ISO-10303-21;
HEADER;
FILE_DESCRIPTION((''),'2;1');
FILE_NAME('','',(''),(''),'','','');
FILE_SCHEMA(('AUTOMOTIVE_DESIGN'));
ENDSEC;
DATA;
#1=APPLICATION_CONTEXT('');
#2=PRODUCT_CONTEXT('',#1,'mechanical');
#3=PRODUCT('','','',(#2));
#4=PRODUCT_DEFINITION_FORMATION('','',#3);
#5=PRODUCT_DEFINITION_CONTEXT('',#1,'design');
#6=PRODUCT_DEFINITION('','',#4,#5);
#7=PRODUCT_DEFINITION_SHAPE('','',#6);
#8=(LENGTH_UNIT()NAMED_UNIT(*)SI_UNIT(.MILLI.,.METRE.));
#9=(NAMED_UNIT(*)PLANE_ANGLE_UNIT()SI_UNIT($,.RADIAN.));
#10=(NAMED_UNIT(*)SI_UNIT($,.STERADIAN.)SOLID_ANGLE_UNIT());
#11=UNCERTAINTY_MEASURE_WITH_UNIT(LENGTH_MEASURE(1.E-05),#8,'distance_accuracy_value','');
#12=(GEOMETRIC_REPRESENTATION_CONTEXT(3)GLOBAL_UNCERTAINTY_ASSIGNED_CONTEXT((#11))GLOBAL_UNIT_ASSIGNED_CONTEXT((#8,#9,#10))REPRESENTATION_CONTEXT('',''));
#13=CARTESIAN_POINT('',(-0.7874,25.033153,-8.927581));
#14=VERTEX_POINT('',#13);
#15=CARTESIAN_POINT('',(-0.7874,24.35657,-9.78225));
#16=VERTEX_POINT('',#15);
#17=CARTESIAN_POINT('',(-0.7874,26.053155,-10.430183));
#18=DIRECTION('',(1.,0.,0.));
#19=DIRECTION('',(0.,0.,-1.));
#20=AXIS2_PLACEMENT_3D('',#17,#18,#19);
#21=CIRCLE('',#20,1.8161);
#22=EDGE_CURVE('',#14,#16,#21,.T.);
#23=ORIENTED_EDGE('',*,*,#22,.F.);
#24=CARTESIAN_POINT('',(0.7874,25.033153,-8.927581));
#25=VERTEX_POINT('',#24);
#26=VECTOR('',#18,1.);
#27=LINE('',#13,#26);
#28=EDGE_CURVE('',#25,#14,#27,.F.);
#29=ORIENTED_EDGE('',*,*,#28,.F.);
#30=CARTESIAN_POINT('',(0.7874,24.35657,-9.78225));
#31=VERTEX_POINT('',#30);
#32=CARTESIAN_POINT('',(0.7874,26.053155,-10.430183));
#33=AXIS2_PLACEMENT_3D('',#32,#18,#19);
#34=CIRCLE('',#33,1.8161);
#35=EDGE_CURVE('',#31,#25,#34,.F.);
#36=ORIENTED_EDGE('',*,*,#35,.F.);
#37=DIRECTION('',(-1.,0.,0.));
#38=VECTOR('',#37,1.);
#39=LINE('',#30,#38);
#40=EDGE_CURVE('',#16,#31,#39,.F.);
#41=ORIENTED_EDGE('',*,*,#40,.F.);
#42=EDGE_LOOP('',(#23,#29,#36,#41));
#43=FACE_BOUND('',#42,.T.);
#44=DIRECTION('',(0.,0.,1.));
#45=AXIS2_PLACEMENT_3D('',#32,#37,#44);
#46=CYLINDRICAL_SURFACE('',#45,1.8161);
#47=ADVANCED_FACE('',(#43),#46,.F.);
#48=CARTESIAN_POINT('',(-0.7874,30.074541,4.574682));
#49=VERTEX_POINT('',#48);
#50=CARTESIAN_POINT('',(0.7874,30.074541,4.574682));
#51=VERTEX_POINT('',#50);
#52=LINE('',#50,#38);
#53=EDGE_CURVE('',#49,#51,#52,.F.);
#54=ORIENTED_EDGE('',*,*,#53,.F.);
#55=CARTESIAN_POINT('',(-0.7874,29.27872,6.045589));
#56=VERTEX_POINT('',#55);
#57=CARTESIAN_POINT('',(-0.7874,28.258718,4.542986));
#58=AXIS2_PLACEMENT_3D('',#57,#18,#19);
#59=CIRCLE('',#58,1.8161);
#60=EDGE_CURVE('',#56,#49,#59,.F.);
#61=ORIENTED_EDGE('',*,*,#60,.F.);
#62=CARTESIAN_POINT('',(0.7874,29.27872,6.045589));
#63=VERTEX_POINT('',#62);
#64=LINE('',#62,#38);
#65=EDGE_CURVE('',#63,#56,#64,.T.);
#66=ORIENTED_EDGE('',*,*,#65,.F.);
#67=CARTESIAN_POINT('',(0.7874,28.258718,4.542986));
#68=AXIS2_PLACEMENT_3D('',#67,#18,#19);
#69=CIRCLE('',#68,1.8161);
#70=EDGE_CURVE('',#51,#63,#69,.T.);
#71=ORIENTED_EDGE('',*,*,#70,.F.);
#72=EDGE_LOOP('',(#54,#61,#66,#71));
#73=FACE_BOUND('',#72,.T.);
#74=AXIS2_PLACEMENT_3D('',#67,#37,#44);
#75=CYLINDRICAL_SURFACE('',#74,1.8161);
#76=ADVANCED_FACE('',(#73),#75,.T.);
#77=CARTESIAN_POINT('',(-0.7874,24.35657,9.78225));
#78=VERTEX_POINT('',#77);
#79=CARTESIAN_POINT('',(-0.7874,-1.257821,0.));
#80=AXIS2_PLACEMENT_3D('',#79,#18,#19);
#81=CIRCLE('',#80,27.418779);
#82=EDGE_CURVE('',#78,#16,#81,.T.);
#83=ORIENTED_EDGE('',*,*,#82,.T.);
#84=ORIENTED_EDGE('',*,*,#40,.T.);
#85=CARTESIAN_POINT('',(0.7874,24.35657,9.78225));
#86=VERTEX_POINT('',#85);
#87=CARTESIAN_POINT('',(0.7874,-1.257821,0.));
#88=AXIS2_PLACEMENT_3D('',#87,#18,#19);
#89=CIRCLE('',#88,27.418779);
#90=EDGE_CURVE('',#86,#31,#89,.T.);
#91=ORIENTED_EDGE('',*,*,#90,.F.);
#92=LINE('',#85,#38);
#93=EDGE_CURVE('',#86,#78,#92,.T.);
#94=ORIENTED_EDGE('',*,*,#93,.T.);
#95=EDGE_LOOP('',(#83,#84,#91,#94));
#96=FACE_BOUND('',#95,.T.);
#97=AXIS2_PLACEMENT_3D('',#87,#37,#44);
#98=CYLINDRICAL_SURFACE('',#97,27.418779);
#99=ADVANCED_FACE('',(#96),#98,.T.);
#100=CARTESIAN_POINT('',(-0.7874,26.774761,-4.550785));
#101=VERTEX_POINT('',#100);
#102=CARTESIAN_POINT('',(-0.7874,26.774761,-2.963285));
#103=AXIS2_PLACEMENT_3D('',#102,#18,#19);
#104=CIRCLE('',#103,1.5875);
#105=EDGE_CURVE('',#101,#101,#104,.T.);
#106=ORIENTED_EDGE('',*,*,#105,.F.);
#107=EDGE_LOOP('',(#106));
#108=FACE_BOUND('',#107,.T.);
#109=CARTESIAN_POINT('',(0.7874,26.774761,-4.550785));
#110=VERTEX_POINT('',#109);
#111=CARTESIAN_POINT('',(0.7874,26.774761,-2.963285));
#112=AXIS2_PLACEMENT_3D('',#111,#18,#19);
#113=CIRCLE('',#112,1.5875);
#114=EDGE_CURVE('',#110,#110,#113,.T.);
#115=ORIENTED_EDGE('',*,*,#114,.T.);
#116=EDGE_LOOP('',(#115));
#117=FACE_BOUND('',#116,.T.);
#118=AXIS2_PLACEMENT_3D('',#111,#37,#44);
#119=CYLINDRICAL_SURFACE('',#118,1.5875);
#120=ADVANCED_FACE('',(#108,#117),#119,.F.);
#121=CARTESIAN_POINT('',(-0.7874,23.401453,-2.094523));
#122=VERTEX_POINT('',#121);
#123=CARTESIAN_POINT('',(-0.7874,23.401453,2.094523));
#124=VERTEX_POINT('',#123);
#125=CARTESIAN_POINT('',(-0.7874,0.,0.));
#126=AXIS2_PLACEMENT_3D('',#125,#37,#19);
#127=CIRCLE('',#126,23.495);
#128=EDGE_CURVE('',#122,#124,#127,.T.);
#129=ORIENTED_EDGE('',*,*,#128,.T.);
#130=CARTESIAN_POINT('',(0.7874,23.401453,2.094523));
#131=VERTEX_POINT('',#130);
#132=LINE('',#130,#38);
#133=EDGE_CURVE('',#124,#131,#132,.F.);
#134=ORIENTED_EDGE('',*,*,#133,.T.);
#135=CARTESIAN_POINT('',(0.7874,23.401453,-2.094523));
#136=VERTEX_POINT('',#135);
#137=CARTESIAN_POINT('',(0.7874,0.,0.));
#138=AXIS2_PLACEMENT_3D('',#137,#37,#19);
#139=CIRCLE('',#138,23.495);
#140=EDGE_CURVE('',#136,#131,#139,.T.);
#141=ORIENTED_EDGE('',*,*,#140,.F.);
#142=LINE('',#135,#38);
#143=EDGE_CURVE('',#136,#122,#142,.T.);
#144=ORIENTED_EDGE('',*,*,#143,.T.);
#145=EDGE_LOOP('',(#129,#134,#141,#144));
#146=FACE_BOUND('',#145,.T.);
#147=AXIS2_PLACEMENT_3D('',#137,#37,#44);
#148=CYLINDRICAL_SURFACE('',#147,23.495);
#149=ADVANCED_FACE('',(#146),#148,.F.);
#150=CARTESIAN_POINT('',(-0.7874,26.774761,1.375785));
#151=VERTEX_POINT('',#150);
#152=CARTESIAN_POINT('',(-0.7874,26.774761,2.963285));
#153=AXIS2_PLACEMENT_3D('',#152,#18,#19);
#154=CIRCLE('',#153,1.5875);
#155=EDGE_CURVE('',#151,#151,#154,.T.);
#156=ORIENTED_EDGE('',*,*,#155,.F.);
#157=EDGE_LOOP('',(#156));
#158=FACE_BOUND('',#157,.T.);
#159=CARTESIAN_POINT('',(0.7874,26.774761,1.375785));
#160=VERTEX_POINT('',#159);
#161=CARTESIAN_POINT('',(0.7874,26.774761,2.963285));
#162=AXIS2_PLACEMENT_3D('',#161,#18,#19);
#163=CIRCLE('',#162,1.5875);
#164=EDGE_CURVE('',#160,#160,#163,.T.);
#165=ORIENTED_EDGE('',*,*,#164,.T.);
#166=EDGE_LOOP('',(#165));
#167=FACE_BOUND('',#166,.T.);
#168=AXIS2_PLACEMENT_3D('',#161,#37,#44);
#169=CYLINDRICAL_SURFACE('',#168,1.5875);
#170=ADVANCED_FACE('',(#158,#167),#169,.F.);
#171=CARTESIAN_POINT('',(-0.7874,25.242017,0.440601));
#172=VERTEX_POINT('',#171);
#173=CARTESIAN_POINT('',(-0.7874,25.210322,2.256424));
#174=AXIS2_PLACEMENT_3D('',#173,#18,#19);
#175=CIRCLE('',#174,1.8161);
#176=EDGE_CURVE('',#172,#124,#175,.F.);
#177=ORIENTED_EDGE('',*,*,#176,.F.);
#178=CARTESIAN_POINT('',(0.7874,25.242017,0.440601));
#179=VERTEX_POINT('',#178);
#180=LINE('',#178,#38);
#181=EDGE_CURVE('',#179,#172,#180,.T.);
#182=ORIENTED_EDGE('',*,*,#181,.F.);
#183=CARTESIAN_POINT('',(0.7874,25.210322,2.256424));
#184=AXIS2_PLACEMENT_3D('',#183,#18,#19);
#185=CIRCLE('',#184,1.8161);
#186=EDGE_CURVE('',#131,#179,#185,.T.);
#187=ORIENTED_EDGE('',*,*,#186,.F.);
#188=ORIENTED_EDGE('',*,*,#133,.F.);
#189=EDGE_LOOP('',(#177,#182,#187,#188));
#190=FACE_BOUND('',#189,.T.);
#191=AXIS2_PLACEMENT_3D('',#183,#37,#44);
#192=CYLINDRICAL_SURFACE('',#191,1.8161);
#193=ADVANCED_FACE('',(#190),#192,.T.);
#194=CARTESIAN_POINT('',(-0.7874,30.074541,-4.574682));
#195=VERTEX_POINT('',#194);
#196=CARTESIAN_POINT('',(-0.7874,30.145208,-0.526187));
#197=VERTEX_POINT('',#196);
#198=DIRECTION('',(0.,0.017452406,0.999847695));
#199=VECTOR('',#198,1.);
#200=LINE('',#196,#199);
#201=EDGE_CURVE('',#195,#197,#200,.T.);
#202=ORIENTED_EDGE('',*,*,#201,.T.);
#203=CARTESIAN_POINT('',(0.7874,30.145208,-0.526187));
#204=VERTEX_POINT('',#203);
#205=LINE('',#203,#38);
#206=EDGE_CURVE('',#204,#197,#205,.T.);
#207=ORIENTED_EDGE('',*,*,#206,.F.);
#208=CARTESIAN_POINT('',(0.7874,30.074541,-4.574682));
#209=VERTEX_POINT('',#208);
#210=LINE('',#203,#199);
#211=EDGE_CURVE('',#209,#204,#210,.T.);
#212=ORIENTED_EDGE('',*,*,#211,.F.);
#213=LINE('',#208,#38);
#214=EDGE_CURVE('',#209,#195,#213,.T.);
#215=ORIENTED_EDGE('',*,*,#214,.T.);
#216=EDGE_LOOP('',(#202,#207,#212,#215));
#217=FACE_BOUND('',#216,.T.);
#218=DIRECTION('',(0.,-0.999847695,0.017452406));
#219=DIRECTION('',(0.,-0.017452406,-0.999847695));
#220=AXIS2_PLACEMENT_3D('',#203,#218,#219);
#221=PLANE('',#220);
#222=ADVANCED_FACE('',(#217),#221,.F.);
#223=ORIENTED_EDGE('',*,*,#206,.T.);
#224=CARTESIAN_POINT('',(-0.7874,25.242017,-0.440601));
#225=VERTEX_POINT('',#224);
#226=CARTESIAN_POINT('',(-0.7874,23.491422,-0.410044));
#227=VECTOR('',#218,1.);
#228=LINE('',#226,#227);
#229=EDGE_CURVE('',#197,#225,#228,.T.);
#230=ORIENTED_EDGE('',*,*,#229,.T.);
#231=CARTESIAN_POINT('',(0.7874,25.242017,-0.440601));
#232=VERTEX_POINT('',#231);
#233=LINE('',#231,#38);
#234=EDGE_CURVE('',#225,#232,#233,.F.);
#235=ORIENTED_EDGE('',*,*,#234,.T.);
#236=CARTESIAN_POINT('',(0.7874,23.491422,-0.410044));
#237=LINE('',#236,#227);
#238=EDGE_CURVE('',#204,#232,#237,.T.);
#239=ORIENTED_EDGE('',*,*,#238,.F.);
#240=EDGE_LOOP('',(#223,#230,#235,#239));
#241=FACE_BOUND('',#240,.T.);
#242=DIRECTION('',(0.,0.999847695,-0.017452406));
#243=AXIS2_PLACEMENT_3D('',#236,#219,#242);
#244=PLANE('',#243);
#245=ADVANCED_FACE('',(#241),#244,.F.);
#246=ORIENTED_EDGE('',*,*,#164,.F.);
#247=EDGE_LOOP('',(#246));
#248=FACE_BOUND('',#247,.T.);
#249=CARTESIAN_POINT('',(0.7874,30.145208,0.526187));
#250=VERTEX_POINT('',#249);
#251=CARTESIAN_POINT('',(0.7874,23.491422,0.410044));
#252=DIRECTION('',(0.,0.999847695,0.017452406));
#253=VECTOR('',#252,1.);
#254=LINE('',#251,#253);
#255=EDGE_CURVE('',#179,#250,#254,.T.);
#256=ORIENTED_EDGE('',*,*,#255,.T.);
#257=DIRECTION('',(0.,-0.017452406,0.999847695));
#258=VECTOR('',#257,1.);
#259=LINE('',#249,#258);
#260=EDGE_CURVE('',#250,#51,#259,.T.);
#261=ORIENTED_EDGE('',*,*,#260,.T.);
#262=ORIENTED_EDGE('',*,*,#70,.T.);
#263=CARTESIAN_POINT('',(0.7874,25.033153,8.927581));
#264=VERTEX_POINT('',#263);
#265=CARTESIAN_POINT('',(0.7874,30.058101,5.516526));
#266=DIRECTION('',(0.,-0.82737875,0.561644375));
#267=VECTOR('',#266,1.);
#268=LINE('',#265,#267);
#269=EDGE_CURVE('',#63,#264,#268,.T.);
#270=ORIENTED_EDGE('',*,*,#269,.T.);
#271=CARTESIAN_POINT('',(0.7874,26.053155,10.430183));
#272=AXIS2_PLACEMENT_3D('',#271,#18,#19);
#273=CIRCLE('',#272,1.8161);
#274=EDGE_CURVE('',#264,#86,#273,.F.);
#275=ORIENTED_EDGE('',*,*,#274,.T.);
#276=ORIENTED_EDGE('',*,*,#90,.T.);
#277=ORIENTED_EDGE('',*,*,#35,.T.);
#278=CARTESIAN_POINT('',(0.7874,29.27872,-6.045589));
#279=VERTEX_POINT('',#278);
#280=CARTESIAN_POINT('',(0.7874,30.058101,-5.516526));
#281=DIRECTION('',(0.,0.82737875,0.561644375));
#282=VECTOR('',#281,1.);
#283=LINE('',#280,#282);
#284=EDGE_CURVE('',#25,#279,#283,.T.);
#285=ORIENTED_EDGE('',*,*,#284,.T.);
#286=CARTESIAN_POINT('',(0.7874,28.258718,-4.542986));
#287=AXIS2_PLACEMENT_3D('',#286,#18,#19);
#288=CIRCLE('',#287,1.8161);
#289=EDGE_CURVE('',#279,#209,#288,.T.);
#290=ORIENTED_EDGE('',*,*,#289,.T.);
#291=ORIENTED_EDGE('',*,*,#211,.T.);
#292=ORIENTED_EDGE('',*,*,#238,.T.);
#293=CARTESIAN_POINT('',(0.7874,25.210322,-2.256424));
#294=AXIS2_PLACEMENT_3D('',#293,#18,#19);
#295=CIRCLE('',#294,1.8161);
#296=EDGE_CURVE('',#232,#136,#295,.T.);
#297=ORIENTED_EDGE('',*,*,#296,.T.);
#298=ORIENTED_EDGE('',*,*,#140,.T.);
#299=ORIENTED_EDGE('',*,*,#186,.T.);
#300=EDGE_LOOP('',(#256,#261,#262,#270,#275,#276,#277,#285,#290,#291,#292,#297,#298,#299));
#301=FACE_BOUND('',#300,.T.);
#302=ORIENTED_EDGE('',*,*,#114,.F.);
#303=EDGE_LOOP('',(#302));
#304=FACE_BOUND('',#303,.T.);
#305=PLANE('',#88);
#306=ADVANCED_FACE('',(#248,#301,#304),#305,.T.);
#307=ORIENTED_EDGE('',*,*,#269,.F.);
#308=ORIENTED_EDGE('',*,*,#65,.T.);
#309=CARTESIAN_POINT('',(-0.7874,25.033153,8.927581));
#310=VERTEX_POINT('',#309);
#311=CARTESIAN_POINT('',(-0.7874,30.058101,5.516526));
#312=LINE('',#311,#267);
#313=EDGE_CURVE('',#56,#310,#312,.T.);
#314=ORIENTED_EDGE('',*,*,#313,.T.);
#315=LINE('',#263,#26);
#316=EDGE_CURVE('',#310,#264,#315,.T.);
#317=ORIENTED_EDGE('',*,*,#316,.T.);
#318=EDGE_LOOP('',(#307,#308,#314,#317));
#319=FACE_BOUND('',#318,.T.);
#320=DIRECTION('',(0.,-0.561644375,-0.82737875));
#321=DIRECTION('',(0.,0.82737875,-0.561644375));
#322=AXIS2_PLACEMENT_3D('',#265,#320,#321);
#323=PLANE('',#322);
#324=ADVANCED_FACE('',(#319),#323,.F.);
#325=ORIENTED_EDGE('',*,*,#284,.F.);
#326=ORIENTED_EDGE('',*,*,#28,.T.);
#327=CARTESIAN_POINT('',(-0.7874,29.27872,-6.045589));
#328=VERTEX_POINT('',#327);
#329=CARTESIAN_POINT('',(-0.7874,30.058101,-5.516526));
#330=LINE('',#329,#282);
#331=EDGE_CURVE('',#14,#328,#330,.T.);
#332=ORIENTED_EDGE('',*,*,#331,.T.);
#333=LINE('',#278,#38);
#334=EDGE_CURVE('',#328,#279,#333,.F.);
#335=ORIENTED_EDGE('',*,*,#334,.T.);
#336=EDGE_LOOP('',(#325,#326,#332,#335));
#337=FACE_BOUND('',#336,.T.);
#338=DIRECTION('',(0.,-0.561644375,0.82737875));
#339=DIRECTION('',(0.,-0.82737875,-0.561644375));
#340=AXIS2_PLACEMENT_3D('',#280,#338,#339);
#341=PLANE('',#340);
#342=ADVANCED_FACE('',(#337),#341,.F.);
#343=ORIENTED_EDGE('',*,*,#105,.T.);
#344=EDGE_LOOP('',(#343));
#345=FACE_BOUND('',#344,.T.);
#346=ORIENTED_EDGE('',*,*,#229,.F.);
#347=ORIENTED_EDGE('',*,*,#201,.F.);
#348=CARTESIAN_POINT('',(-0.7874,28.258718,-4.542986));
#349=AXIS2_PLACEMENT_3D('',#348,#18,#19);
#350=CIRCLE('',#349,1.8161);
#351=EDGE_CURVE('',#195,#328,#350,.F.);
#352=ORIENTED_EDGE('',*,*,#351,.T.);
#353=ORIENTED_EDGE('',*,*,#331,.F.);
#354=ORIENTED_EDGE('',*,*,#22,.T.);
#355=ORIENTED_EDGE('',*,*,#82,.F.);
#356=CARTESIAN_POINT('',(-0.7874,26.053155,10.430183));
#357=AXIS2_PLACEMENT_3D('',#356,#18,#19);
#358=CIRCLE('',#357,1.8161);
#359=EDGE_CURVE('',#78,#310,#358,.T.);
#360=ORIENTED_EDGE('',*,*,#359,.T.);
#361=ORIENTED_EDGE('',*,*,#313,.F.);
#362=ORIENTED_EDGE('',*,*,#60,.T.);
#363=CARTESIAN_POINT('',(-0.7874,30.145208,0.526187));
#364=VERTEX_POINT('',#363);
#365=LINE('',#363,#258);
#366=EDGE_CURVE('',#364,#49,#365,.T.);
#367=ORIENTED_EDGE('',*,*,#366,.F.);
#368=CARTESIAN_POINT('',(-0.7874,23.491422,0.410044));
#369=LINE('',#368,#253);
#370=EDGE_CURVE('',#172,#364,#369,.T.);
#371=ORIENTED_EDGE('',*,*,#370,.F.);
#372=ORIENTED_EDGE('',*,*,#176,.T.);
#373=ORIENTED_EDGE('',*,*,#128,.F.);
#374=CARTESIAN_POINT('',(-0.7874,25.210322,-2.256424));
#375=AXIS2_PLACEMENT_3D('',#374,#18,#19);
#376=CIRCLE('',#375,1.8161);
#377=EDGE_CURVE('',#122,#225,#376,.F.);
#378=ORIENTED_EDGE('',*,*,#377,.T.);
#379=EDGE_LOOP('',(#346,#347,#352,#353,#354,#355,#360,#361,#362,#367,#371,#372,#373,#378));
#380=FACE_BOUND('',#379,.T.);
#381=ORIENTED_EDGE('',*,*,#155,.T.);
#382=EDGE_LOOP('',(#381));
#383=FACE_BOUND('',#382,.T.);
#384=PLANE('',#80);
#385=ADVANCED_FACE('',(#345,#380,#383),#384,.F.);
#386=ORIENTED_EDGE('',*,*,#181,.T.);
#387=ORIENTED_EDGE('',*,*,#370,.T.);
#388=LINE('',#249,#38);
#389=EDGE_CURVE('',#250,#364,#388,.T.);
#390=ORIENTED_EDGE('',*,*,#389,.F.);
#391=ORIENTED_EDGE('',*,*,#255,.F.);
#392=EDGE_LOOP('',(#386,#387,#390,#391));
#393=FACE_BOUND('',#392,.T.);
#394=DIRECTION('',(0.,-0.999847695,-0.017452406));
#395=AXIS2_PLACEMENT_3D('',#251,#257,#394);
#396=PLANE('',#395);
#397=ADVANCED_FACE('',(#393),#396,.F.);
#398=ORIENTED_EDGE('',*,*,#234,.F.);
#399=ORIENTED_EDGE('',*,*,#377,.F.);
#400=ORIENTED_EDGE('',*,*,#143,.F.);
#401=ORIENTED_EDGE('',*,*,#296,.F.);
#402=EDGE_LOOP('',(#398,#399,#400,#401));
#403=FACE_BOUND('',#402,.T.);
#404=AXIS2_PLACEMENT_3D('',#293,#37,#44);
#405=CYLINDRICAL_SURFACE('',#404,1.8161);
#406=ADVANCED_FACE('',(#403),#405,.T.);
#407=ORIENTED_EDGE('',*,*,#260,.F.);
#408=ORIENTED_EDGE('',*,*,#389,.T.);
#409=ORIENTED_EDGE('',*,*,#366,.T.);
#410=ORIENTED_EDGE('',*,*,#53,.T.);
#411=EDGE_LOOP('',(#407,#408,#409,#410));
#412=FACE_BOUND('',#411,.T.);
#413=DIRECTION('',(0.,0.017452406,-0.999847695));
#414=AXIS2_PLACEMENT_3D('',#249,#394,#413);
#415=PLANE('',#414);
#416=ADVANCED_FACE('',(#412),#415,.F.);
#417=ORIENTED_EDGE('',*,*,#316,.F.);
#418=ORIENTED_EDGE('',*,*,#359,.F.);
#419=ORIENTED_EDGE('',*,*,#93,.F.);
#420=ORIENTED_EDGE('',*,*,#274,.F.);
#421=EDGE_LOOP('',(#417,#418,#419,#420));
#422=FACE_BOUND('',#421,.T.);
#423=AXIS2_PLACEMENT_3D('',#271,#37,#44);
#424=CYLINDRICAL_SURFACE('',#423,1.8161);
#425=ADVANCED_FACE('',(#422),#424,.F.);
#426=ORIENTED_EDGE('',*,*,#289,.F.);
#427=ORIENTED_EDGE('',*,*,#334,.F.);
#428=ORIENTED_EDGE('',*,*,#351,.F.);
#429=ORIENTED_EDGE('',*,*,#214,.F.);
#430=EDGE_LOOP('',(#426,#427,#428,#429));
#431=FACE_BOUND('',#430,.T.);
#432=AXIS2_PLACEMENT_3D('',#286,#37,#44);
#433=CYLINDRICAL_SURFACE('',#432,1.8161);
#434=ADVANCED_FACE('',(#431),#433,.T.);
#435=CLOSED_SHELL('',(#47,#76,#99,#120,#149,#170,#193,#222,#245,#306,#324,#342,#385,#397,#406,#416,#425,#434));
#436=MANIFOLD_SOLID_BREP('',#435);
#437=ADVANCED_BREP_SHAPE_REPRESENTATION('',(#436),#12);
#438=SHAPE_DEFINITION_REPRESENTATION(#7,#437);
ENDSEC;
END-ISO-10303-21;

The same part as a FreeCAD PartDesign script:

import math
import FreeCAD as App
import Part
import Sketcher
Q = App.Units.Quantity


def edges_at(feature, points):
    """Names of the edges that pass closest to the given points."""
    edges = feature.Shape.Edges
    near = lambda p: min(range(len(edges)), key=lambda i: edges[i].distToShape(Part.Vertex(*p))[0])
    return sorted({f"Edge{near(p) + 1}" for p in points})

doc = App.newDocument("Part")
body = doc.addObject("PartDesign::Body", "Body")

sketch1 = body.newObject("Sketcher::SketchObject", "Sketch")
sketch1.AttachmentSupport = (doc.getObject("YZ_Plane"), [""])
sketch1.MapMode = "FlatFace"
sketch1.addGeometry([
    Part.LineSegment(App.Vector(30.1, 5.5, 0), App.Vector(24.6, 9.3, 0)),
    Part.ArcOfCircle(Part.Circle(App.Vector(-1.3, 0, 0), App.Vector(0, 0, 1), 27.4), math.radians(20), math.radians(340)),
    Part.LineSegment(App.Vector(24.6, -9.3, 0), App.Vector(30.1, -5.5, 0)),
    Part.LineSegment(App.Vector(30.1, -5.5, 0), App.Vector(30.1, -0.5, 0)),
    Part.LineSegment(App.Vector(30.1, -0.5, 0), App.Vector(23.5, -0.4, 0)),
    Part.ArcOfCircle(Part.Circle(App.Vector(0, 0, 0), App.Vector(0, 0, 1), 23.5), math.radians(1), math.radians(359)),
    Part.LineSegment(App.Vector(23.5, 0.4, 0), App.Vector(30.1, 0.5, 0)),
    Part.LineSegment(App.Vector(30.1, 0.5, 0), App.Vector(30.1, 5.5, 0)),
    Part.Circle(App.Vector(26.8, 3, 0), App.Vector(0, 0, 1), 1.6),
    Part.Circle(App.Vector(26.8, -3, 0), App.Vector(0, 0, 1), 1.6),
], False)
sketch1.addConstraint([
    Sketcher.Constraint("Coincident", 0, 2, 1, 1),
    Sketcher.Constraint("Coincident", 1, 2, 2, 1),
    Sketcher.Constraint("Coincident", 2, 2, 3, 1),
    Sketcher.Constraint("Coincident", 3, 2, 4, 1),
    Sketcher.Constraint("Coincident", 4, 2, 5, 2),
    Sketcher.Constraint("Coincident", 5, 1, 6, 1),
    Sketcher.Constraint("Coincident", 6, 2, 7, 1),
    Sketcher.Constraint("Coincident", 7, 2, 0, 1),
    Sketcher.Constraint("Coincident", 5, 3, -1, 1),
    Sketcher.Constraint("Equal", 8, 9),
    Sketcher.Constraint("Symmetric", 8, 3, 9, 3, -1),
    Sketcher.Constraint("Symmetric", 0, 2, 1, 2, -1),
    Sketcher.Constraint("Symmetric", 3, 2, 6, 2, -1),
    Sketcher.Constraint("Symmetric", 2, 2, 7, 2, -1),
    Sketcher.Constraint("Perpendicular", 3, 4),
    Sketcher.Constraint("Perpendicular", 6, 7),
    Sketcher.Constraint("Equal", 2, 4),
    Sketcher.Constraint("Diameter", 8, Q("0.125 in")),
    Sketcher.Constraint("Angle", 3, Q("89 deg")),
    Sketcher.Constraint("Radius", 5, Q("0.925 in")),
    Sketcher.Constraint("Distance", 0, Q("0.262 in")),
    Sketcher.Constraint("Radius", 1, Q("27.418779 mm")),
    Sketcher.Constraint("Distance", 3, Q("0.1965 in")),
    Sketcher.Constraint("DistanceX", -1, 1, 2, 2, Q("30.058101 mm")),
    Sketcher.Constraint("DistanceX", 0, 2, 8, 3, Q("2.2227 mm")),
    Sketcher.Constraint("DistanceY", 9, 3, 3, 2, Q("2.437099 mm")),
    Sketcher.Constraint("DistanceX", 1, 3, -1, 1, Q("1.257821 mm")),
])
pad1 = body.newObject("PartDesign::Pad", "Pad")
pad1.Profile = sketch1
pad1.Type = "TwoLengths"
pad1.Length = Q("0.031 in")
pad1.Length2 = Q("0.031 in")
doc.recompute()

fillet = body.newObject("PartDesign::Fillet", "Fillet")
fillet.Base = (pad1, edges_at(pad1, [
    (0, 24.552, 9.254),
    (0, 30.058, 5.517),
    (0, 23.491, 0.41),
    (0, 23.491, -0.41),
    (0, 30.058, -5.517),
    (0, 24.552, -9.254),
]))
fillet.Radius = Q("0.0715 in")

doc.recompute()
